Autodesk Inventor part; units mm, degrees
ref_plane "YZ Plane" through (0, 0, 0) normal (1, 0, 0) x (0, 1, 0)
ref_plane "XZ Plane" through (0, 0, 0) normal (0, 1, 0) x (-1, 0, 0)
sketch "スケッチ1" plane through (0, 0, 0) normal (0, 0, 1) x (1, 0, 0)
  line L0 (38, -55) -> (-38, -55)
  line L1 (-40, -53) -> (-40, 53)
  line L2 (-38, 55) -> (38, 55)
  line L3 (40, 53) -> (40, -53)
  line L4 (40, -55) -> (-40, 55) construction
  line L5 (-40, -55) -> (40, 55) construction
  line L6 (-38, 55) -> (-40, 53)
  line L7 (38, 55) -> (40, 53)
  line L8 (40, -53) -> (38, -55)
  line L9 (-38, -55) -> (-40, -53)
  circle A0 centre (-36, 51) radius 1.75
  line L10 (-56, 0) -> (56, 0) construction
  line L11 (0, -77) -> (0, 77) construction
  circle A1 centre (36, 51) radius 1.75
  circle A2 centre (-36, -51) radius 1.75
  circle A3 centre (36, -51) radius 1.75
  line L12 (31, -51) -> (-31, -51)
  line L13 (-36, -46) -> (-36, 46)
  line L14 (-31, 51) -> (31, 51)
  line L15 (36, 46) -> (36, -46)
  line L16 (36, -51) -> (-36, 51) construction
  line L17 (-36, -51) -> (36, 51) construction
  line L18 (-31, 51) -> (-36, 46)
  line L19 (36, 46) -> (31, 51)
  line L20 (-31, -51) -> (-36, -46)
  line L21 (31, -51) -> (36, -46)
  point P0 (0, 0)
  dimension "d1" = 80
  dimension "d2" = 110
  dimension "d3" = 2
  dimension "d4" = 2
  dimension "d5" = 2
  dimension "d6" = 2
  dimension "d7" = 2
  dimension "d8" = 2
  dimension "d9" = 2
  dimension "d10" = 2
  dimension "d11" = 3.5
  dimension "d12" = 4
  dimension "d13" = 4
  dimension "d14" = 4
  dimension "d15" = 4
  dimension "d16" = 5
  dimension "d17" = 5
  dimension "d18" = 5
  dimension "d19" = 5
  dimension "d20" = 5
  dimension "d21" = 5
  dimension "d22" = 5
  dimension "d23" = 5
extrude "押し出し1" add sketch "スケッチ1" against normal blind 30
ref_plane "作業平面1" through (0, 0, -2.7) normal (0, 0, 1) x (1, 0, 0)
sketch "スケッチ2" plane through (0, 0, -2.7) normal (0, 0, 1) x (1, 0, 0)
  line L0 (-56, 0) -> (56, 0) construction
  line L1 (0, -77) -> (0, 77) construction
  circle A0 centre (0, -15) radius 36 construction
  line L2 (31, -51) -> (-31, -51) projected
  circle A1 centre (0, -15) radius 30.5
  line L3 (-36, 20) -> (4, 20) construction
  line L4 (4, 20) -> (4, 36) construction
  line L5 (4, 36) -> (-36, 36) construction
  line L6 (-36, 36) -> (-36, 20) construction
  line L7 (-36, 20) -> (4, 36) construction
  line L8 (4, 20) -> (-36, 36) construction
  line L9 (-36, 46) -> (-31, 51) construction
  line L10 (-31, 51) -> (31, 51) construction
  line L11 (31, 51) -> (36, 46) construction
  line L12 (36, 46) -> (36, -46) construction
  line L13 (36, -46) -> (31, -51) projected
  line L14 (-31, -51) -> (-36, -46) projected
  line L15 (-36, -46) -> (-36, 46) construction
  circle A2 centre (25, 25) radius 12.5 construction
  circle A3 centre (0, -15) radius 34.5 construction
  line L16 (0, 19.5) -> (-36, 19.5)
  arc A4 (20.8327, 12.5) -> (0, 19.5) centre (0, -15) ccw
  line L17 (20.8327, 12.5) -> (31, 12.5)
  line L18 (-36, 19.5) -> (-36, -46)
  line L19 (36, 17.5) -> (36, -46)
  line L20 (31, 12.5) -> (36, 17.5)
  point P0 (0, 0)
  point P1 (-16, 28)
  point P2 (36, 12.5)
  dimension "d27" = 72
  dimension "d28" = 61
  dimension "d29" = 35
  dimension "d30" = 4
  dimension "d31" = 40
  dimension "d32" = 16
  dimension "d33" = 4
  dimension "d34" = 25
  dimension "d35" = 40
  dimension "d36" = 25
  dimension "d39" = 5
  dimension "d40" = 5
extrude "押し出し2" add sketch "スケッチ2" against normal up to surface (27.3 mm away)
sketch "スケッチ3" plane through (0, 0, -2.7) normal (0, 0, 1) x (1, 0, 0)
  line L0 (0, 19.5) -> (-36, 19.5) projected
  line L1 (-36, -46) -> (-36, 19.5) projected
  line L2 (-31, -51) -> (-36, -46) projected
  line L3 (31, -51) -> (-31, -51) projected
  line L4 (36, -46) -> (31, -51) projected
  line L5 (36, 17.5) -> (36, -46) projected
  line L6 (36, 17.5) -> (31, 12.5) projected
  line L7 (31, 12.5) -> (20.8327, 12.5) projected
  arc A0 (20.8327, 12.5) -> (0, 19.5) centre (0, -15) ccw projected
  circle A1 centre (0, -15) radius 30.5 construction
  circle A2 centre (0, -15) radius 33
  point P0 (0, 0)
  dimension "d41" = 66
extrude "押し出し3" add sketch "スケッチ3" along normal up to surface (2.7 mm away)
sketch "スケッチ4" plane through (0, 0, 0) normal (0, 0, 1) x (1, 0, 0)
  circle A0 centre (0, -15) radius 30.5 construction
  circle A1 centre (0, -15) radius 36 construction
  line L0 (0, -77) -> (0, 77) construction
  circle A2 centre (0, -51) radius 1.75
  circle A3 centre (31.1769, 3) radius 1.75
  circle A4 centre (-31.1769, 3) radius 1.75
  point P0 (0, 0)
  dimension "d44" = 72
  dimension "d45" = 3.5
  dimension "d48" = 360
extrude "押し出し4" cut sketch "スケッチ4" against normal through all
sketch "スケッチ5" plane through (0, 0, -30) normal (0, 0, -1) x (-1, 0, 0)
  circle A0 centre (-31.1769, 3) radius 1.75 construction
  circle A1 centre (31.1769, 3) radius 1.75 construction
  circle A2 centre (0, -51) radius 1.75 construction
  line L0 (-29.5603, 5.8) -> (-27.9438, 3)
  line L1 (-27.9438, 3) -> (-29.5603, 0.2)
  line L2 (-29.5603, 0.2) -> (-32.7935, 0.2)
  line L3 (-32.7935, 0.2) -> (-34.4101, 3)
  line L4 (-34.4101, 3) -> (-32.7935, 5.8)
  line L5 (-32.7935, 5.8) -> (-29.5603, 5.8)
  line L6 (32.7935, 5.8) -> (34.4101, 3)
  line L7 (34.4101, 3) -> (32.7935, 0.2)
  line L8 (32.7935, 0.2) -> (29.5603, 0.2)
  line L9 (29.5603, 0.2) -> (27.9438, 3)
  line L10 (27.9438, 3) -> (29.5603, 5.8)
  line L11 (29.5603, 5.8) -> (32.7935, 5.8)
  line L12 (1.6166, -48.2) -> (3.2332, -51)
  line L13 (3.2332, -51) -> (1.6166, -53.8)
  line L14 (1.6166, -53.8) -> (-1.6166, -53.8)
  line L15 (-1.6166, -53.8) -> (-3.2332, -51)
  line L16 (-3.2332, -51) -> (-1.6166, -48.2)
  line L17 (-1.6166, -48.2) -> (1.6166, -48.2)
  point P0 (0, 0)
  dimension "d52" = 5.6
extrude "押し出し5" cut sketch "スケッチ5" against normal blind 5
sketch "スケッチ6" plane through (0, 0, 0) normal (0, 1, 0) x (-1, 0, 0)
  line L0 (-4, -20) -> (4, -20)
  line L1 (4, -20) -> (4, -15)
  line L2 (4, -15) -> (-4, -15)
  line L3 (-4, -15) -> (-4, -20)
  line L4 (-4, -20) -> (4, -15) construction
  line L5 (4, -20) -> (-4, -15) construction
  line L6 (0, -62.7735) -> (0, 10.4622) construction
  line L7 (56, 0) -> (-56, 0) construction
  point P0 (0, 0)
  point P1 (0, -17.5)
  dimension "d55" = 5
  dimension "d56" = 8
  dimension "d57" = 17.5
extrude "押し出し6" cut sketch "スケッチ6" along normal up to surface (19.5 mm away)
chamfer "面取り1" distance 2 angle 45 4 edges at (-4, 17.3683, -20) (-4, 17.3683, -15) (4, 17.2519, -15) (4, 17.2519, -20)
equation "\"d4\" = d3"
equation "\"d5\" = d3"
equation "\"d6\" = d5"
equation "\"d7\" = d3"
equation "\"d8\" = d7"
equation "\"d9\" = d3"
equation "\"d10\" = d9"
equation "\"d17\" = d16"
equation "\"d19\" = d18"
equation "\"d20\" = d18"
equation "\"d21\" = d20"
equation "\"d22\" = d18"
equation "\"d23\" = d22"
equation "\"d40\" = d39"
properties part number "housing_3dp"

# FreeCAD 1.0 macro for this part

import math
import FreeCAD as App
import Part
import Sketcher

V = App.Vector
Q = App.Units.Quantity


def edges_at(feature, points):
    """Names of the edges that pass closest to the given points."""
    edges = feature.Shape.Edges
    near = lambda p: min(range(len(edges)), key=lambda i: edges[i].distToShape(Part.Vertex(*p))[0])
    return sorted({f"Edge{near(p) + 1}" for p in points})

doc = App.newDocument("Part")
params = doc.addObject("Spreadsheet::Sheet", "Params")
for row, (alias, value) in enumerate([
    ("sketch1_diameter", "3.5 mm"),
    ("sketch1_height", "106 mm"),
    ("pad1_length", "30 mm"),
    ("sketch2_diameter", "61 mm"),
    ("sketch2_radius", "34.5 mm"),
    ("sketch2_height", "63.5 mm"),
    ("sketch2_height2", "65.5 mm"),
    ("pad2_length", "27.3 mm"),
    ("sketch3_diameter", "66 mm"),
    ("sketch3_radius", "34.5 mm"),
    ("sketch3_width", "36 mm"),
    ("sketch3_width2", "62 mm"),
    ("sketch3_height", "65.5 mm"),
    ("pad3_length", "2.7 mm"),
    ("sketch4_diameter", "3.5 mm"),
    ("pocket2_length", "5 mm"),
    ("sketch6_width", "8 mm"),
    ("sketch6_height", "5 mm"),
    ("pocket3_length", "19.5 mm"),
    ("chamfer_size", "2 mm"),
], start=1):
    params.set(f"A{row}", alias)
    params.set(f"B{row}", "=" + value)
    params.setAlias(f"B{row}", alias)

body = doc.addObject("PartDesign::Body", "Body")

# Sketch on XY plane
sketch1 = body.newObject("Sketcher::SketchObject", "Sketch")
sketch1.AttachmentSupport = (doc.getObject("XY_Plane"), [""])
sketch1.MapMode = "FlatFace"
sketch1.addGeometry([
    Part.LineSegment(V(-38, -55, 0), V(38, -55, 0)),  # 0
    Part.LineSegment(V(38, -55, 0), V(40, -53, 0)),  # 1
    Part.LineSegment(V(40, -53, 0), V(40, 53, 0)),  # 2
    Part.LineSegment(V(40, 53, 0), V(38, 55, 0)),  # 3
    Part.LineSegment(V(38, 55, 0), V(-38, 55, 0)),  # 4
    Part.LineSegment(V(-38, 55, 0), V(-40, 53, 0)),  # 5
    Part.LineSegment(V(-40, 53, 0), V(-40, -53, 0)),  # 6
    Part.LineSegment(V(-40, -53, 0), V(-38, -55, 0)),  # 7
    Part.Circle(V(-36, -51, 0), V(0, 0, 1), 1.8),  # 8
    Part.Circle(V(36, -51, 0), V(0, 0, 1), 1.8),  # 9
    Part.Circle(V(-36, 51, 0), V(0, 0, 1), 1.8),  # 10
    Part.LineSegment(V(36, -46, 0), V(31, -51, 0)),  # 11
    Part.LineSegment(V(31, -51, 0), V(-31, -51, 0)),  # 12
    Part.LineSegment(V(-31, -51, 0), V(-36, -46, 0)),  # 13
    Part.LineSegment(V(-36, -46, 0), V(-36, 46, 0)),  # 14
    Part.LineSegment(V(-36, 46, 0), V(-31, 51, 0)),  # 15
    Part.LineSegment(V(-31, 51, 0), V(31, 51, 0)),  # 16
    Part.LineSegment(V(31, 51, 0), V(36, 46, 0)),  # 17
    Part.LineSegment(V(36, 46, 0), V(36, -46, 0)),  # 18
    Part.Circle(V(36, 51, 0), V(0, 0, 1), 1.8),  # 19
], False)
sketch1.addConstraint([
    Sketcher.Constraint("Coincident", 0, 2, 1, 1),
    Sketcher.Constraint("Coincident", 1, 2, 2, 1),
    Sketcher.Constraint("Coincident", 2, 2, 3, 1),
    Sketcher.Constraint("Coincident", 3, 2, 4, 1),
    Sketcher.Constraint("Coincident", 4, 2, 5, 1),
    Sketcher.Constraint("Coincident", 5, 2, 6, 1),
    Sketcher.Constraint("Coincident", 6, 2, 7, 1),
    Sketcher.Constraint("Coincident", 7, 2, 0, 1),
    Sketcher.Constraint("Coincident", 11, 2, 12, 1),
    Sketcher.Constraint("Coincident", 12, 2, 13, 1),
    Sketcher.Constraint("Coincident", 13, 2, 14, 1),
    Sketcher.Constraint("Coincident", 14, 2, 15, 1),
    Sketcher.Constraint("Coincident", 15, 2, 16, 1),
    Sketcher.Constraint("Coincident", 16, 2, 17, 1),
    Sketcher.Constraint("Coincident", 17, 2, 18, 1),
    Sketcher.Constraint("Coincident", 18, 2, 11, 1),
    Sketcher.Constraint("Horizontal", 0),
    Sketcher.Constraint("Vertical", 2),
    Sketcher.Constraint("Horizontal", 4),
    Sketcher.Constraint("Vertical", 6),
    Sketcher.Constraint("Horizontal", 12),
    Sketcher.Constraint("Vertical", 14),
    Sketcher.Constraint("Horizontal", 16),
    Sketcher.Constraint("Vertical", 18),
    Sketcher.Constraint("Equal", 8, 9),
    Sketcher.Constraint("Equal", 9, 10),
    Sketcher.Constraint("Equal", 10, 19),
    Sketcher.Constraint("Symmetric", 9, 3, 10, 3, -1, 1),
    Sketcher.Constraint("Symmetric", 8, 3, 19, 3, -1, 1),
    Sketcher.Constraint("Symmetric", 0, 2, 4, 2, -1, 1),
    Sketcher.Constraint("Symmetric", 1, 2, 5, 2, -1, 1),
    Sketcher.Constraint("Symmetric", 11, 2, 15, 2, -1, 1),
    Sketcher.Constraint("Symmetric", 13, 2, 17, 2, -1, 1),
    Sketcher.Constraint("Symmetric", 8, 3, 9, 3, -2),
    Sketcher.Constraint("Perpendicular", 1, 3),
    Sketcher.Constraint("Perpendicular", 5, 7),
    Sketcher.Constraint("Perpendicular", 7, 11),
    Sketcher.Constraint("Perpendicular", 11, 13),
    Sketcher.Constraint("Perpendicular", 13, 15),
    Sketcher.Constraint("Perpendicular", 15, 17),
    Sketcher.Constraint("Horizontal", 2, 2, 5, 2),
    Sketcher.Constraint("Horizontal", 1, 2, 6, 2),
    Sketcher.Constraint("Horizontal", 9, 3, 11, 2),
    Sketcher.Constraint("Horizontal", 14, 2, 17, 2),
    Sketcher.Constraint("Vertical", 0, 2, 3, 2),
    Sketcher.Constraint("Vertical", 10, 3, 13, 2),
    Sketcher.Constraint("Diameter", 8, 3.5),
    Sketcher.Constraint("DistanceX", 9, 3, 0, 2, 2.0),
    Sketcher.Constraint("DistanceY", 0, 2, 9, 3, 4.0),
    Sketcher.Constraint("DistanceX", 0, 2, 1, 2, 2.0),
    Sketcher.Constraint("DistanceX", 5, 2, 2, 2, 80.0),
    Sketcher.Constraint("DistanceX", 11, 2, 9, 3, 5.0),
    Sketcher.Constraint("DistanceY", 2, 1, 2, 2, 106.0),
])
sketch1.setExpression("Constraints[46]", "Params.sketch1_diameter")
sketch1.setExpression("Constraints[52]", "Params.sketch1_height")
pad1 = body.newObject("PartDesign::Pad", "Pad")
pad1.Profile = sketch1
pad1.setExpression("Length", "Params.pad1_length")
pad1.Reversed = True

# Sketch on XY plane
sketch2 = body.newObject("Sketcher::SketchObject", "Sketch001")
sketch2.AttachmentSupport = (doc.getObject("XY_Plane"), [""])
sketch2.MapMode = "FlatFace"
sketch2.AttachmentOffset = App.Placement(V(0, 0, -2.7), App.Rotation())
sketch2.addGeometry([
    Part.LineSegment(V(-31, -51, 0), V(31, -51, 0)),  # 0
    Part.LineSegment(V(31, -51, 0), V(36, -46, 0)),  # 1
    Part.LineSegment(V(36, -46, 0), V(36, 18, 0)),  # 2
    Part.LineSegment(V(36, 18, 0), V(31, 12, 0)),  # 3
    Part.LineSegment(V(31, 12, 0), V(21, 12, 0)),  # 4
    Part.ArcOfCircle(Part.Circle(V(0, -15, 0), V(0, 0, 1), 34), math.radians(53), math.radians(90)),  # 5
    Part.LineSegment(V(0, 20, 0), V(-36, 20, 0)),  # 6
    Part.LineSegment(V(-36, 20, 0), V(-36, -46, 0)),  # 7
    Part.LineSegment(V(-36, -46, 0), V(-31, -51, 0)),  # 8
    Part.Circle(V(0, -15, 0), V(0, 0, 1), 30),  # 9
], False)
sketch2.addConstraint([
    Sketcher.Constraint("Coincident", 0, 2, 1, 1),
    Sketcher.Constraint("Coincident", 1, 2, 2, 1),
    Sketcher.Constraint("Coincident", 2, 2, 3, 1),
    Sketcher.Constraint("Coincident", 3, 2, 4, 1),
    Sketcher.Constraint("Coincident", 4, 2, 5, 1),
    Sketcher.Constraint("Tangent", 5, 2, 6, 1),
    Sketcher.Constraint("Coincident", 6, 2, 7, 1),
    Sketcher.Constraint("Coincident", 7, 2, 8, 1),
    Sketcher.Constraint("Coincident", 8, 2, 0, 1),
    Sketcher.Constraint("Horizontal", 0),
    Sketcher.Constraint("Vertical", 2),
    Sketcher.Constraint("Horizontal", 4),
    Sketcher.Constraint("Horizontal", 6),
    Sketcher.Constraint("Vertical", 7),
    Sketcher.Constraint("Coincident", 9, 3, 5, 3),
    Sketcher.Constraint("Symmetric", 1, 2, 7, 2, -2),
    Sketcher.Constraint("PointOnObject", 5, 3, -2),
    Sketcher.Constraint("Parallel", 1, 3),
    Sketcher.Constraint("Perpendicular", 3, 8),
    Sketcher.Constraint("Vertical", 0, 2, 3, 2),
    Sketcher.Constraint("Equal", 3, 8),
    Sketcher.Constraint("Diameter", 9, 61.0),
    Sketcher.Constraint("DistanceX", 0, 2, 1, 2, 5.0),
    Sketcher.Constraint("DistanceX", 7, 2, 1, 2, 72.0),
    Sketcher.Constraint("Radius", 5, 34.5),
    Sketcher.Constraint("DistanceY", 2, 1, 2, 2, 63.5),
    Sketcher.Constraint("DistanceY", 7, 2, 7, 1, 65.5),
    Sketcher.Constraint("DistanceY", 5, 3, -1, 1, 15.0),
])
sketch2.setExpression("Constraints[21]", "Params.sketch2_diameter")
sketch2.setExpression("Constraints[24]", "Params.sketch2_radius")
sketch2.setExpression("Constraints[25]", "Params.sketch2_height")
sketch2.setExpression("Constraints[26]", "Params.sketch2_height2")
pad2 = body.newObject("PartDesign::Pad", "Pad001")
pad2.Profile = sketch2
pad2.setExpression("Length", "Params.pad2_length")
pad2.Reversed = True

# Sketch on XY plane
sketch3 = body.newObject("Sketcher::SketchObject", "Sketch002")
sketch3.AttachmentSupport = (doc.getObject("XY_Plane"), [""])
sketch3.MapMode = "FlatFace"
sketch3.AttachmentOffset = App.Placement(V(0, 0, -2.7), App.Rotation())
sketch3.addGeometry([
    Part.ArcOfCircle(Part.Circle(V(0, -15, 0), V(0, 0, 1), 35), math.radians(53), math.radians(90)),  # 0
    Part.LineSegment(V(0, 20, 0), V(-36, 20, 0)),  # 1
    Part.LineSegment(V(-36, 20, 0), V(-36, -46, 0)),  # 2
    Part.LineSegment(V(-36, -46, 0), V(-31, -51, 0)),  # 3
    Part.LineSegment(V(-31, -51, 0), V(31, -51, 0)),  # 4
    Part.LineSegment(V(31, -51, 0), V(36, -46, 0)),  # 5
    Part.LineSegment(V(36, -46, 0), V(36, 18, 0)),  # 6
    Part.LineSegment(V(36, 18, 0), V(31, 12, 0)),  # 7
    Part.LineSegment(V(31, 12, 0), V(21, 12, 0)),  # 8
    Part.Circle(V(0, -15, 0), V(0, 0, 1), 33),  # 9
], False)
sketch3.addConstraint([
    Sketcher.Constraint("Tangent", 0, 2, 1, 1),
    Sketcher.Constraint("Coincident", 1, 2, 2, 1),
    Sketcher.Constraint("Coincident", 2, 2, 3, 1),
    Sketcher.Constraint("Coincident", 3, 2, 4, 1),
    Sketcher.Constraint("Coincident", 4, 2, 5, 1),
    Sketcher.Constraint("Coincident", 5, 2, 6, 1),
    Sketcher.Constraint("Coincident", 6, 2, 7, 1),
    Sketcher.Constraint("Coincident", 7, 2, 8, 1),
    Sketcher.Constraint("Coincident", 8, 2, 0, 1),
    Sketcher.Constraint("Horizontal", 1),
    Sketcher.Constraint("Vertical", 2),
    Sketcher.Constraint("Horizontal", 4),
    Sketcher.Constraint("Vertical", 6),
    Sketcher.Constraint("Horizontal", 8),
    Sketcher.Constraint("Coincident", 9, 3, 0, 3),
    Sketcher.Constraint("Symmetric", 2, 2, 5, 2, -2),
    Sketcher.Constraint("PointOnObject", 0, 3, -2),
    Sketcher.Constraint("Perpendicular", 3, 5),
    Sketcher.Constraint("Parallel", 5, 7),
    Sketcher.Constraint("Vertical", 4, 2, 7, 2),
    Sketcher.Constraint("Equal", 3, 5),
    Sketcher.Constraint("Diameter", 9, 66.0),
    Sketcher.Constraint("Radius", 0, 34.5),
    Sketcher.Constraint("DistanceX", 1, 2, 1, 1, 36.0),
    Sketcher.Constraint("DistanceX", 4, 1, 4, 2, 62.0),
    Sketcher.Constraint("DistanceY", 2, 2, 2, 1, 65.5),
    Sketcher.Constraint("DistanceY", 6, 1, 6, 2, 63.5),
    Sketcher.Constraint("DistanceY", 0, 3, -1, 1, 15.0),
])
sketch3.setExpression("Constraints[21]", "Params.sketch3_diameter")
sketch3.setExpression("Constraints[22]", "Params.sketch3_radius")
sketch3.setExpression("Constraints[23]", "Params.sketch3_width")
sketch3.setExpression("Constraints[24]", "Params.sketch3_width2")
sketch3.setExpression("Constraints[25]", "Params.sketch3_height")
pad3 = body.newObject("PartDesign::Pad", "Pad002")
pad3.Profile = sketch3
pad3.setExpression("Length", "Params.pad3_length")

# Sketch on XY plane
sketch4 = body.newObject("Sketcher::SketchObject", "Sketch003")
sketch4.AttachmentSupport = (doc.getObject("XY_Plane"), [""])
sketch4.MapMode = "FlatFace"
sketch4.addGeometry([
    Part.Circle(V(0, -51, 0), V(0, 0, 1), 1.8),
    Part.Circle(V(31.2, 3, 0), V(0, 0, 1), 1.8),
    Part.Circle(V(-31.2, 3, 0), V(0, 0, 1), 1.8),
], False)
sketch4.addConstraint([
    Sketcher.Constraint("Equal", 0, 1),
    Sketcher.Constraint("Equal", 1, 2),
    Sketcher.Constraint("Symmetric", 1, 3, 2, 3, -2),
    Sketcher.Constraint("PointOnObject", 0, 3, -2),
    Sketcher.Constraint("Diameter", 0, 3.5),
    Sketcher.Constraint("DistanceY", 0, 3, -1, 1, 51.0),
    Sketcher.Constraint("DistanceY", -1, 1, 1, 3, 3.0),
    Sketcher.Constraint("DistanceX", -1, 1, 1, 3, 31.177),
])
sketch4.setExpression("Constraints[4]", "Params.sketch4_diameter")
pocket1 = body.newObject("PartDesign::Pocket", "Pocket")
pocket1.Profile = sketch4
pocket1.Type = "ThroughAll"

# Sketch on XY plane
sketch5 = body.newObject("Sketcher::SketchObject", "Sketch004")
sketch5.AttachmentSupport = (doc.getObject("XY_Plane"), [""])
sketch5.MapMode = "FlatFace"
sketch5.AttachmentOffset = App.Placement(V(0, 0, -30), App.Rotation())
sketch5.addGeometry([
    Part.LineSegment(V(27.9, 3, 0), V(29.6, 5.8, 0)),  # 0
    Part.LineSegment(V(29.6, 5.8, 0), V(32.8, 5.8, 0)),  # 1
    Part.LineSegment(V(32.8, 5.8, 0), V(34.4, 3, 0)),  # 2
    Part.LineSegment(V(34.4, 3, 0), V(32.8, 0.2, 0)),  # 3
    Part.LineSegment(V(32.8, 0.2, 0), V(29.6, 0.2, 0)),  # 4
    Part.LineSegment(V(29.6, 0.2, 0), V(27.9, 3, 0)),  # 5
    Part.LineSegment(V(-34.4, 3, 0), V(-32.8, 5.8, 0)),  # 6
    Part.LineSegment(V(-32.8, 5.8, 0), V(-29.6, 5.8, 0)),  # 7
    Part.LineSegment(V(-29.6, 5.8, 0), V(-27.9, 3, 0)),  # 8
    Part.LineSegment(V(-27.9, 3, 0), V(-29.6, 0.2, 0)),  # 9
    Part.LineSegment(V(-29.6, 0.2, 0), V(-32.8, 0.2, 0)),  # 10
    Part.LineSegment(V(-32.8, 0.2, 0), V(-34.4, 3, 0)),  # 11
    Part.LineSegment(V(-3.2, -51, 0), V(-1.6, -48.2, 0)),  # 12
    Part.LineSegment(V(-1.6, -48.2, 0), V(1.6, -48.2, 0)),  # 13
    Part.LineSegment(V(1.6, -48.2, 0), V(3.2, -51, 0)),  # 14
    Part.LineSegment(V(3.2, -51, 0), V(1.6, -53.8, 0)),  # 15
    Part.LineSegment(V(1.6, -53.8, 0), V(-1.6, -53.8, 0)),  # 16
    Part.LineSegment(V(-1.6, -53.8, 0), V(-3.2, -51, 0)),  # 17
], False)
sketch5.addConstraint([
    Sketcher.Constraint("Coincident", 0, 2, 1, 1),
    Sketcher.Constraint("Coincident", 1, 2, 2, 1),
    Sketcher.Constraint("Coincident", 2, 2, 3, 1),
    Sketcher.Constraint("Coincident", 3, 2, 4, 1),
    Sketcher.Constraint("Coincident", 4, 2, 5, 1),
    Sketcher.Constraint("Coincident", 5, 2, 0, 1),
    Sketcher.Constraint("Coincident", 6, 2, 7, 1),
    Sketcher.Constraint("Coincident", 7, 2, 8, 1),
    Sketcher.Constraint("Coincident", 8, 2, 9, 1),
    Sketcher.Constraint("Coincident", 9, 2, 10, 1),
    Sketcher.Constraint("Coincident", 10, 2, 11, 1),
    Sketcher.Constraint("Coincident", 11, 2, 6, 1),
    Sketcher.Constraint("Coincident", 12, 2, 13, 1),
    Sketcher.Constraint("Coincident", 13, 2, 14, 1),
    Sketcher.Constraint("Coincident", 14, 2, 15, 1),
    Sketcher.Constraint("Coincident", 15, 2, 16, 1),
    Sketcher.Constraint("Coincident", 16, 2, 17, 1),
    Sketcher.Constraint("Coincident", 17, 2, 12, 1),
    Sketcher.Constraint("Horizontal", 1),
    Sketcher.Constraint("Horizontal", 4),
    Sketcher.Constraint("Horizontal", 7),
    Sketcher.Constraint("Horizontal", 10),
    Sketcher.Constraint("Horizontal", 13),
    Sketcher.Constraint("Horizontal", 16),
    Sketcher.Constraint("Symmetric", 1, 2, 6, 2, -2),
    Sketcher.Constraint("Symmetric", 5, 2, 8, 2, -2),
    Sketcher.Constraint("Symmetric", 4, 2, 9, 2, -2),
    Sketcher.Constraint("Symmetric", 2, 2, 11, 2, -2),
    Sketcher.Constraint("Symmetric", 14, 2, 17, 2, -2),
    Sketcher.Constraint("Parallel", 0, 3),
    Sketcher.Constraint("Parallel", 2, 5),
    Sketcher.Constraint("Parallel", 3, 6),
    Sketcher.Constraint("Parallel", 5, 8),
    Sketcher.Constraint("Parallel", 8, 11),
    Sketcher.Constraint("Parallel", 9, 12),
    Sketcher.Constraint("Parallel", 11, 14),
    Sketcher.Constraint("Parallel", 12, 15),
    Sketcher.Constraint("Parallel", 14, 17),
    Sketcher.Constraint("Horizontal", 2, 2, 5, 2),
    Sketcher.Constraint("Vertical", 1, 2, 3, 2),
    Sketcher.Constraint("Vertical", 13, 2, 15, 2),
    Sketcher.Constraint("Equal", 10, 13),
    Sketcher.Constraint("Equal", 11, 12),
    Sketcher.Constraint("DistanceY", 3, 2, 1, 2, 5.6),
    Sketcher.Constraint("Angle", 2, Q("-59.9997 deg")),
    Sketcher.Constraint("DistanceY", -1, 1, 2, 2, 3.0),
    Sketcher.Constraint("DistanceY", 14, 2, -1, 1, 51.0),
    Sketcher.Constraint("DistanceX", -1, 1, 2, 2, 34.41),
    Sketcher.Constraint("DistanceX", 1, 1, 1, 2, 3.2332),
])
pocket2 = body.newObject("PartDesign::Pocket", "Pocket001")
pocket2.Profile = sketch5
pocket2.setExpression("Length", "Params.pocket2_length")
pocket2.Reversed = True

# Sketch on XZ plane
sketch6 = body.newObject("Sketcher::SketchObject", "Sketch005")
sketch6.AttachmentSupport = (doc.getObject("XZ_Plane"), [""])
sketch6.MapMode = "FlatFace"
sketch6.addGeometry([
    Part.LineSegment(V(4, -15, 0), V(4, -20, 0)),
    Part.LineSegment(V(4, -20, 0), V(-4, -20, 0)),
    Part.LineSegment(V(-4, -20, 0), V(-4, -15, 0)),
    Part.LineSegment(V(-4, -15, 0), V(4, -15, 0)),
], False)
sketch6.addConstraint([
    Sketcher.Constraint("Coincident", 0, 2, 1, 1),
    Sketcher.Constraint("Coincident", 1, 2, 2, 1),
    Sketcher.Constraint("Coincident", 2, 2, 3, 1),
    Sketcher.Constraint("Coincident", 3, 2, 0, 1),
    Sketcher.Constraint("Vertical", 0),
    Sketcher.Constraint("Horizontal", 1),
    Sketcher.Constraint("Vertical", 2),
    Sketcher.Constraint("Horizontal", 3),
    Sketcher.Constraint("DistanceX", 1, 2, 1, 1, 8.0),
    Sketcher.Constraint("DistanceY", 0, 2, 0, 1, 5.0),
    Sketcher.Constraint("DistanceX", -1, 1, 0, 2, 4.0),
    Sketcher.Constraint("DistanceY", 0, 2, -1, 1, 20.0),
])
sketch6.setExpression("Constraints[8]", "Params.sketch6_width")
sketch6.setExpression("Constraints[9]", "Params.sketch6_height")
pocket3 = body.newObject("PartDesign::Pocket", "Pocket002")
pocket3.Profile = sketch6
pocket3.setExpression("Length", "Params.pocket3_length")
doc.recompute()

chamfer = body.newObject("PartDesign::Chamfer", "Chamfer")
chamfer.Base = (pocket3, edges_at(pocket3, [
    (-4, 17.368, -20),
    (-4, 17.368, -15),
    (4, 17.252, -15),
    (4, 17.252, -20),
]))
chamfer.setExpression("Size", "Params.chamfer_size")

doc.recompute()
